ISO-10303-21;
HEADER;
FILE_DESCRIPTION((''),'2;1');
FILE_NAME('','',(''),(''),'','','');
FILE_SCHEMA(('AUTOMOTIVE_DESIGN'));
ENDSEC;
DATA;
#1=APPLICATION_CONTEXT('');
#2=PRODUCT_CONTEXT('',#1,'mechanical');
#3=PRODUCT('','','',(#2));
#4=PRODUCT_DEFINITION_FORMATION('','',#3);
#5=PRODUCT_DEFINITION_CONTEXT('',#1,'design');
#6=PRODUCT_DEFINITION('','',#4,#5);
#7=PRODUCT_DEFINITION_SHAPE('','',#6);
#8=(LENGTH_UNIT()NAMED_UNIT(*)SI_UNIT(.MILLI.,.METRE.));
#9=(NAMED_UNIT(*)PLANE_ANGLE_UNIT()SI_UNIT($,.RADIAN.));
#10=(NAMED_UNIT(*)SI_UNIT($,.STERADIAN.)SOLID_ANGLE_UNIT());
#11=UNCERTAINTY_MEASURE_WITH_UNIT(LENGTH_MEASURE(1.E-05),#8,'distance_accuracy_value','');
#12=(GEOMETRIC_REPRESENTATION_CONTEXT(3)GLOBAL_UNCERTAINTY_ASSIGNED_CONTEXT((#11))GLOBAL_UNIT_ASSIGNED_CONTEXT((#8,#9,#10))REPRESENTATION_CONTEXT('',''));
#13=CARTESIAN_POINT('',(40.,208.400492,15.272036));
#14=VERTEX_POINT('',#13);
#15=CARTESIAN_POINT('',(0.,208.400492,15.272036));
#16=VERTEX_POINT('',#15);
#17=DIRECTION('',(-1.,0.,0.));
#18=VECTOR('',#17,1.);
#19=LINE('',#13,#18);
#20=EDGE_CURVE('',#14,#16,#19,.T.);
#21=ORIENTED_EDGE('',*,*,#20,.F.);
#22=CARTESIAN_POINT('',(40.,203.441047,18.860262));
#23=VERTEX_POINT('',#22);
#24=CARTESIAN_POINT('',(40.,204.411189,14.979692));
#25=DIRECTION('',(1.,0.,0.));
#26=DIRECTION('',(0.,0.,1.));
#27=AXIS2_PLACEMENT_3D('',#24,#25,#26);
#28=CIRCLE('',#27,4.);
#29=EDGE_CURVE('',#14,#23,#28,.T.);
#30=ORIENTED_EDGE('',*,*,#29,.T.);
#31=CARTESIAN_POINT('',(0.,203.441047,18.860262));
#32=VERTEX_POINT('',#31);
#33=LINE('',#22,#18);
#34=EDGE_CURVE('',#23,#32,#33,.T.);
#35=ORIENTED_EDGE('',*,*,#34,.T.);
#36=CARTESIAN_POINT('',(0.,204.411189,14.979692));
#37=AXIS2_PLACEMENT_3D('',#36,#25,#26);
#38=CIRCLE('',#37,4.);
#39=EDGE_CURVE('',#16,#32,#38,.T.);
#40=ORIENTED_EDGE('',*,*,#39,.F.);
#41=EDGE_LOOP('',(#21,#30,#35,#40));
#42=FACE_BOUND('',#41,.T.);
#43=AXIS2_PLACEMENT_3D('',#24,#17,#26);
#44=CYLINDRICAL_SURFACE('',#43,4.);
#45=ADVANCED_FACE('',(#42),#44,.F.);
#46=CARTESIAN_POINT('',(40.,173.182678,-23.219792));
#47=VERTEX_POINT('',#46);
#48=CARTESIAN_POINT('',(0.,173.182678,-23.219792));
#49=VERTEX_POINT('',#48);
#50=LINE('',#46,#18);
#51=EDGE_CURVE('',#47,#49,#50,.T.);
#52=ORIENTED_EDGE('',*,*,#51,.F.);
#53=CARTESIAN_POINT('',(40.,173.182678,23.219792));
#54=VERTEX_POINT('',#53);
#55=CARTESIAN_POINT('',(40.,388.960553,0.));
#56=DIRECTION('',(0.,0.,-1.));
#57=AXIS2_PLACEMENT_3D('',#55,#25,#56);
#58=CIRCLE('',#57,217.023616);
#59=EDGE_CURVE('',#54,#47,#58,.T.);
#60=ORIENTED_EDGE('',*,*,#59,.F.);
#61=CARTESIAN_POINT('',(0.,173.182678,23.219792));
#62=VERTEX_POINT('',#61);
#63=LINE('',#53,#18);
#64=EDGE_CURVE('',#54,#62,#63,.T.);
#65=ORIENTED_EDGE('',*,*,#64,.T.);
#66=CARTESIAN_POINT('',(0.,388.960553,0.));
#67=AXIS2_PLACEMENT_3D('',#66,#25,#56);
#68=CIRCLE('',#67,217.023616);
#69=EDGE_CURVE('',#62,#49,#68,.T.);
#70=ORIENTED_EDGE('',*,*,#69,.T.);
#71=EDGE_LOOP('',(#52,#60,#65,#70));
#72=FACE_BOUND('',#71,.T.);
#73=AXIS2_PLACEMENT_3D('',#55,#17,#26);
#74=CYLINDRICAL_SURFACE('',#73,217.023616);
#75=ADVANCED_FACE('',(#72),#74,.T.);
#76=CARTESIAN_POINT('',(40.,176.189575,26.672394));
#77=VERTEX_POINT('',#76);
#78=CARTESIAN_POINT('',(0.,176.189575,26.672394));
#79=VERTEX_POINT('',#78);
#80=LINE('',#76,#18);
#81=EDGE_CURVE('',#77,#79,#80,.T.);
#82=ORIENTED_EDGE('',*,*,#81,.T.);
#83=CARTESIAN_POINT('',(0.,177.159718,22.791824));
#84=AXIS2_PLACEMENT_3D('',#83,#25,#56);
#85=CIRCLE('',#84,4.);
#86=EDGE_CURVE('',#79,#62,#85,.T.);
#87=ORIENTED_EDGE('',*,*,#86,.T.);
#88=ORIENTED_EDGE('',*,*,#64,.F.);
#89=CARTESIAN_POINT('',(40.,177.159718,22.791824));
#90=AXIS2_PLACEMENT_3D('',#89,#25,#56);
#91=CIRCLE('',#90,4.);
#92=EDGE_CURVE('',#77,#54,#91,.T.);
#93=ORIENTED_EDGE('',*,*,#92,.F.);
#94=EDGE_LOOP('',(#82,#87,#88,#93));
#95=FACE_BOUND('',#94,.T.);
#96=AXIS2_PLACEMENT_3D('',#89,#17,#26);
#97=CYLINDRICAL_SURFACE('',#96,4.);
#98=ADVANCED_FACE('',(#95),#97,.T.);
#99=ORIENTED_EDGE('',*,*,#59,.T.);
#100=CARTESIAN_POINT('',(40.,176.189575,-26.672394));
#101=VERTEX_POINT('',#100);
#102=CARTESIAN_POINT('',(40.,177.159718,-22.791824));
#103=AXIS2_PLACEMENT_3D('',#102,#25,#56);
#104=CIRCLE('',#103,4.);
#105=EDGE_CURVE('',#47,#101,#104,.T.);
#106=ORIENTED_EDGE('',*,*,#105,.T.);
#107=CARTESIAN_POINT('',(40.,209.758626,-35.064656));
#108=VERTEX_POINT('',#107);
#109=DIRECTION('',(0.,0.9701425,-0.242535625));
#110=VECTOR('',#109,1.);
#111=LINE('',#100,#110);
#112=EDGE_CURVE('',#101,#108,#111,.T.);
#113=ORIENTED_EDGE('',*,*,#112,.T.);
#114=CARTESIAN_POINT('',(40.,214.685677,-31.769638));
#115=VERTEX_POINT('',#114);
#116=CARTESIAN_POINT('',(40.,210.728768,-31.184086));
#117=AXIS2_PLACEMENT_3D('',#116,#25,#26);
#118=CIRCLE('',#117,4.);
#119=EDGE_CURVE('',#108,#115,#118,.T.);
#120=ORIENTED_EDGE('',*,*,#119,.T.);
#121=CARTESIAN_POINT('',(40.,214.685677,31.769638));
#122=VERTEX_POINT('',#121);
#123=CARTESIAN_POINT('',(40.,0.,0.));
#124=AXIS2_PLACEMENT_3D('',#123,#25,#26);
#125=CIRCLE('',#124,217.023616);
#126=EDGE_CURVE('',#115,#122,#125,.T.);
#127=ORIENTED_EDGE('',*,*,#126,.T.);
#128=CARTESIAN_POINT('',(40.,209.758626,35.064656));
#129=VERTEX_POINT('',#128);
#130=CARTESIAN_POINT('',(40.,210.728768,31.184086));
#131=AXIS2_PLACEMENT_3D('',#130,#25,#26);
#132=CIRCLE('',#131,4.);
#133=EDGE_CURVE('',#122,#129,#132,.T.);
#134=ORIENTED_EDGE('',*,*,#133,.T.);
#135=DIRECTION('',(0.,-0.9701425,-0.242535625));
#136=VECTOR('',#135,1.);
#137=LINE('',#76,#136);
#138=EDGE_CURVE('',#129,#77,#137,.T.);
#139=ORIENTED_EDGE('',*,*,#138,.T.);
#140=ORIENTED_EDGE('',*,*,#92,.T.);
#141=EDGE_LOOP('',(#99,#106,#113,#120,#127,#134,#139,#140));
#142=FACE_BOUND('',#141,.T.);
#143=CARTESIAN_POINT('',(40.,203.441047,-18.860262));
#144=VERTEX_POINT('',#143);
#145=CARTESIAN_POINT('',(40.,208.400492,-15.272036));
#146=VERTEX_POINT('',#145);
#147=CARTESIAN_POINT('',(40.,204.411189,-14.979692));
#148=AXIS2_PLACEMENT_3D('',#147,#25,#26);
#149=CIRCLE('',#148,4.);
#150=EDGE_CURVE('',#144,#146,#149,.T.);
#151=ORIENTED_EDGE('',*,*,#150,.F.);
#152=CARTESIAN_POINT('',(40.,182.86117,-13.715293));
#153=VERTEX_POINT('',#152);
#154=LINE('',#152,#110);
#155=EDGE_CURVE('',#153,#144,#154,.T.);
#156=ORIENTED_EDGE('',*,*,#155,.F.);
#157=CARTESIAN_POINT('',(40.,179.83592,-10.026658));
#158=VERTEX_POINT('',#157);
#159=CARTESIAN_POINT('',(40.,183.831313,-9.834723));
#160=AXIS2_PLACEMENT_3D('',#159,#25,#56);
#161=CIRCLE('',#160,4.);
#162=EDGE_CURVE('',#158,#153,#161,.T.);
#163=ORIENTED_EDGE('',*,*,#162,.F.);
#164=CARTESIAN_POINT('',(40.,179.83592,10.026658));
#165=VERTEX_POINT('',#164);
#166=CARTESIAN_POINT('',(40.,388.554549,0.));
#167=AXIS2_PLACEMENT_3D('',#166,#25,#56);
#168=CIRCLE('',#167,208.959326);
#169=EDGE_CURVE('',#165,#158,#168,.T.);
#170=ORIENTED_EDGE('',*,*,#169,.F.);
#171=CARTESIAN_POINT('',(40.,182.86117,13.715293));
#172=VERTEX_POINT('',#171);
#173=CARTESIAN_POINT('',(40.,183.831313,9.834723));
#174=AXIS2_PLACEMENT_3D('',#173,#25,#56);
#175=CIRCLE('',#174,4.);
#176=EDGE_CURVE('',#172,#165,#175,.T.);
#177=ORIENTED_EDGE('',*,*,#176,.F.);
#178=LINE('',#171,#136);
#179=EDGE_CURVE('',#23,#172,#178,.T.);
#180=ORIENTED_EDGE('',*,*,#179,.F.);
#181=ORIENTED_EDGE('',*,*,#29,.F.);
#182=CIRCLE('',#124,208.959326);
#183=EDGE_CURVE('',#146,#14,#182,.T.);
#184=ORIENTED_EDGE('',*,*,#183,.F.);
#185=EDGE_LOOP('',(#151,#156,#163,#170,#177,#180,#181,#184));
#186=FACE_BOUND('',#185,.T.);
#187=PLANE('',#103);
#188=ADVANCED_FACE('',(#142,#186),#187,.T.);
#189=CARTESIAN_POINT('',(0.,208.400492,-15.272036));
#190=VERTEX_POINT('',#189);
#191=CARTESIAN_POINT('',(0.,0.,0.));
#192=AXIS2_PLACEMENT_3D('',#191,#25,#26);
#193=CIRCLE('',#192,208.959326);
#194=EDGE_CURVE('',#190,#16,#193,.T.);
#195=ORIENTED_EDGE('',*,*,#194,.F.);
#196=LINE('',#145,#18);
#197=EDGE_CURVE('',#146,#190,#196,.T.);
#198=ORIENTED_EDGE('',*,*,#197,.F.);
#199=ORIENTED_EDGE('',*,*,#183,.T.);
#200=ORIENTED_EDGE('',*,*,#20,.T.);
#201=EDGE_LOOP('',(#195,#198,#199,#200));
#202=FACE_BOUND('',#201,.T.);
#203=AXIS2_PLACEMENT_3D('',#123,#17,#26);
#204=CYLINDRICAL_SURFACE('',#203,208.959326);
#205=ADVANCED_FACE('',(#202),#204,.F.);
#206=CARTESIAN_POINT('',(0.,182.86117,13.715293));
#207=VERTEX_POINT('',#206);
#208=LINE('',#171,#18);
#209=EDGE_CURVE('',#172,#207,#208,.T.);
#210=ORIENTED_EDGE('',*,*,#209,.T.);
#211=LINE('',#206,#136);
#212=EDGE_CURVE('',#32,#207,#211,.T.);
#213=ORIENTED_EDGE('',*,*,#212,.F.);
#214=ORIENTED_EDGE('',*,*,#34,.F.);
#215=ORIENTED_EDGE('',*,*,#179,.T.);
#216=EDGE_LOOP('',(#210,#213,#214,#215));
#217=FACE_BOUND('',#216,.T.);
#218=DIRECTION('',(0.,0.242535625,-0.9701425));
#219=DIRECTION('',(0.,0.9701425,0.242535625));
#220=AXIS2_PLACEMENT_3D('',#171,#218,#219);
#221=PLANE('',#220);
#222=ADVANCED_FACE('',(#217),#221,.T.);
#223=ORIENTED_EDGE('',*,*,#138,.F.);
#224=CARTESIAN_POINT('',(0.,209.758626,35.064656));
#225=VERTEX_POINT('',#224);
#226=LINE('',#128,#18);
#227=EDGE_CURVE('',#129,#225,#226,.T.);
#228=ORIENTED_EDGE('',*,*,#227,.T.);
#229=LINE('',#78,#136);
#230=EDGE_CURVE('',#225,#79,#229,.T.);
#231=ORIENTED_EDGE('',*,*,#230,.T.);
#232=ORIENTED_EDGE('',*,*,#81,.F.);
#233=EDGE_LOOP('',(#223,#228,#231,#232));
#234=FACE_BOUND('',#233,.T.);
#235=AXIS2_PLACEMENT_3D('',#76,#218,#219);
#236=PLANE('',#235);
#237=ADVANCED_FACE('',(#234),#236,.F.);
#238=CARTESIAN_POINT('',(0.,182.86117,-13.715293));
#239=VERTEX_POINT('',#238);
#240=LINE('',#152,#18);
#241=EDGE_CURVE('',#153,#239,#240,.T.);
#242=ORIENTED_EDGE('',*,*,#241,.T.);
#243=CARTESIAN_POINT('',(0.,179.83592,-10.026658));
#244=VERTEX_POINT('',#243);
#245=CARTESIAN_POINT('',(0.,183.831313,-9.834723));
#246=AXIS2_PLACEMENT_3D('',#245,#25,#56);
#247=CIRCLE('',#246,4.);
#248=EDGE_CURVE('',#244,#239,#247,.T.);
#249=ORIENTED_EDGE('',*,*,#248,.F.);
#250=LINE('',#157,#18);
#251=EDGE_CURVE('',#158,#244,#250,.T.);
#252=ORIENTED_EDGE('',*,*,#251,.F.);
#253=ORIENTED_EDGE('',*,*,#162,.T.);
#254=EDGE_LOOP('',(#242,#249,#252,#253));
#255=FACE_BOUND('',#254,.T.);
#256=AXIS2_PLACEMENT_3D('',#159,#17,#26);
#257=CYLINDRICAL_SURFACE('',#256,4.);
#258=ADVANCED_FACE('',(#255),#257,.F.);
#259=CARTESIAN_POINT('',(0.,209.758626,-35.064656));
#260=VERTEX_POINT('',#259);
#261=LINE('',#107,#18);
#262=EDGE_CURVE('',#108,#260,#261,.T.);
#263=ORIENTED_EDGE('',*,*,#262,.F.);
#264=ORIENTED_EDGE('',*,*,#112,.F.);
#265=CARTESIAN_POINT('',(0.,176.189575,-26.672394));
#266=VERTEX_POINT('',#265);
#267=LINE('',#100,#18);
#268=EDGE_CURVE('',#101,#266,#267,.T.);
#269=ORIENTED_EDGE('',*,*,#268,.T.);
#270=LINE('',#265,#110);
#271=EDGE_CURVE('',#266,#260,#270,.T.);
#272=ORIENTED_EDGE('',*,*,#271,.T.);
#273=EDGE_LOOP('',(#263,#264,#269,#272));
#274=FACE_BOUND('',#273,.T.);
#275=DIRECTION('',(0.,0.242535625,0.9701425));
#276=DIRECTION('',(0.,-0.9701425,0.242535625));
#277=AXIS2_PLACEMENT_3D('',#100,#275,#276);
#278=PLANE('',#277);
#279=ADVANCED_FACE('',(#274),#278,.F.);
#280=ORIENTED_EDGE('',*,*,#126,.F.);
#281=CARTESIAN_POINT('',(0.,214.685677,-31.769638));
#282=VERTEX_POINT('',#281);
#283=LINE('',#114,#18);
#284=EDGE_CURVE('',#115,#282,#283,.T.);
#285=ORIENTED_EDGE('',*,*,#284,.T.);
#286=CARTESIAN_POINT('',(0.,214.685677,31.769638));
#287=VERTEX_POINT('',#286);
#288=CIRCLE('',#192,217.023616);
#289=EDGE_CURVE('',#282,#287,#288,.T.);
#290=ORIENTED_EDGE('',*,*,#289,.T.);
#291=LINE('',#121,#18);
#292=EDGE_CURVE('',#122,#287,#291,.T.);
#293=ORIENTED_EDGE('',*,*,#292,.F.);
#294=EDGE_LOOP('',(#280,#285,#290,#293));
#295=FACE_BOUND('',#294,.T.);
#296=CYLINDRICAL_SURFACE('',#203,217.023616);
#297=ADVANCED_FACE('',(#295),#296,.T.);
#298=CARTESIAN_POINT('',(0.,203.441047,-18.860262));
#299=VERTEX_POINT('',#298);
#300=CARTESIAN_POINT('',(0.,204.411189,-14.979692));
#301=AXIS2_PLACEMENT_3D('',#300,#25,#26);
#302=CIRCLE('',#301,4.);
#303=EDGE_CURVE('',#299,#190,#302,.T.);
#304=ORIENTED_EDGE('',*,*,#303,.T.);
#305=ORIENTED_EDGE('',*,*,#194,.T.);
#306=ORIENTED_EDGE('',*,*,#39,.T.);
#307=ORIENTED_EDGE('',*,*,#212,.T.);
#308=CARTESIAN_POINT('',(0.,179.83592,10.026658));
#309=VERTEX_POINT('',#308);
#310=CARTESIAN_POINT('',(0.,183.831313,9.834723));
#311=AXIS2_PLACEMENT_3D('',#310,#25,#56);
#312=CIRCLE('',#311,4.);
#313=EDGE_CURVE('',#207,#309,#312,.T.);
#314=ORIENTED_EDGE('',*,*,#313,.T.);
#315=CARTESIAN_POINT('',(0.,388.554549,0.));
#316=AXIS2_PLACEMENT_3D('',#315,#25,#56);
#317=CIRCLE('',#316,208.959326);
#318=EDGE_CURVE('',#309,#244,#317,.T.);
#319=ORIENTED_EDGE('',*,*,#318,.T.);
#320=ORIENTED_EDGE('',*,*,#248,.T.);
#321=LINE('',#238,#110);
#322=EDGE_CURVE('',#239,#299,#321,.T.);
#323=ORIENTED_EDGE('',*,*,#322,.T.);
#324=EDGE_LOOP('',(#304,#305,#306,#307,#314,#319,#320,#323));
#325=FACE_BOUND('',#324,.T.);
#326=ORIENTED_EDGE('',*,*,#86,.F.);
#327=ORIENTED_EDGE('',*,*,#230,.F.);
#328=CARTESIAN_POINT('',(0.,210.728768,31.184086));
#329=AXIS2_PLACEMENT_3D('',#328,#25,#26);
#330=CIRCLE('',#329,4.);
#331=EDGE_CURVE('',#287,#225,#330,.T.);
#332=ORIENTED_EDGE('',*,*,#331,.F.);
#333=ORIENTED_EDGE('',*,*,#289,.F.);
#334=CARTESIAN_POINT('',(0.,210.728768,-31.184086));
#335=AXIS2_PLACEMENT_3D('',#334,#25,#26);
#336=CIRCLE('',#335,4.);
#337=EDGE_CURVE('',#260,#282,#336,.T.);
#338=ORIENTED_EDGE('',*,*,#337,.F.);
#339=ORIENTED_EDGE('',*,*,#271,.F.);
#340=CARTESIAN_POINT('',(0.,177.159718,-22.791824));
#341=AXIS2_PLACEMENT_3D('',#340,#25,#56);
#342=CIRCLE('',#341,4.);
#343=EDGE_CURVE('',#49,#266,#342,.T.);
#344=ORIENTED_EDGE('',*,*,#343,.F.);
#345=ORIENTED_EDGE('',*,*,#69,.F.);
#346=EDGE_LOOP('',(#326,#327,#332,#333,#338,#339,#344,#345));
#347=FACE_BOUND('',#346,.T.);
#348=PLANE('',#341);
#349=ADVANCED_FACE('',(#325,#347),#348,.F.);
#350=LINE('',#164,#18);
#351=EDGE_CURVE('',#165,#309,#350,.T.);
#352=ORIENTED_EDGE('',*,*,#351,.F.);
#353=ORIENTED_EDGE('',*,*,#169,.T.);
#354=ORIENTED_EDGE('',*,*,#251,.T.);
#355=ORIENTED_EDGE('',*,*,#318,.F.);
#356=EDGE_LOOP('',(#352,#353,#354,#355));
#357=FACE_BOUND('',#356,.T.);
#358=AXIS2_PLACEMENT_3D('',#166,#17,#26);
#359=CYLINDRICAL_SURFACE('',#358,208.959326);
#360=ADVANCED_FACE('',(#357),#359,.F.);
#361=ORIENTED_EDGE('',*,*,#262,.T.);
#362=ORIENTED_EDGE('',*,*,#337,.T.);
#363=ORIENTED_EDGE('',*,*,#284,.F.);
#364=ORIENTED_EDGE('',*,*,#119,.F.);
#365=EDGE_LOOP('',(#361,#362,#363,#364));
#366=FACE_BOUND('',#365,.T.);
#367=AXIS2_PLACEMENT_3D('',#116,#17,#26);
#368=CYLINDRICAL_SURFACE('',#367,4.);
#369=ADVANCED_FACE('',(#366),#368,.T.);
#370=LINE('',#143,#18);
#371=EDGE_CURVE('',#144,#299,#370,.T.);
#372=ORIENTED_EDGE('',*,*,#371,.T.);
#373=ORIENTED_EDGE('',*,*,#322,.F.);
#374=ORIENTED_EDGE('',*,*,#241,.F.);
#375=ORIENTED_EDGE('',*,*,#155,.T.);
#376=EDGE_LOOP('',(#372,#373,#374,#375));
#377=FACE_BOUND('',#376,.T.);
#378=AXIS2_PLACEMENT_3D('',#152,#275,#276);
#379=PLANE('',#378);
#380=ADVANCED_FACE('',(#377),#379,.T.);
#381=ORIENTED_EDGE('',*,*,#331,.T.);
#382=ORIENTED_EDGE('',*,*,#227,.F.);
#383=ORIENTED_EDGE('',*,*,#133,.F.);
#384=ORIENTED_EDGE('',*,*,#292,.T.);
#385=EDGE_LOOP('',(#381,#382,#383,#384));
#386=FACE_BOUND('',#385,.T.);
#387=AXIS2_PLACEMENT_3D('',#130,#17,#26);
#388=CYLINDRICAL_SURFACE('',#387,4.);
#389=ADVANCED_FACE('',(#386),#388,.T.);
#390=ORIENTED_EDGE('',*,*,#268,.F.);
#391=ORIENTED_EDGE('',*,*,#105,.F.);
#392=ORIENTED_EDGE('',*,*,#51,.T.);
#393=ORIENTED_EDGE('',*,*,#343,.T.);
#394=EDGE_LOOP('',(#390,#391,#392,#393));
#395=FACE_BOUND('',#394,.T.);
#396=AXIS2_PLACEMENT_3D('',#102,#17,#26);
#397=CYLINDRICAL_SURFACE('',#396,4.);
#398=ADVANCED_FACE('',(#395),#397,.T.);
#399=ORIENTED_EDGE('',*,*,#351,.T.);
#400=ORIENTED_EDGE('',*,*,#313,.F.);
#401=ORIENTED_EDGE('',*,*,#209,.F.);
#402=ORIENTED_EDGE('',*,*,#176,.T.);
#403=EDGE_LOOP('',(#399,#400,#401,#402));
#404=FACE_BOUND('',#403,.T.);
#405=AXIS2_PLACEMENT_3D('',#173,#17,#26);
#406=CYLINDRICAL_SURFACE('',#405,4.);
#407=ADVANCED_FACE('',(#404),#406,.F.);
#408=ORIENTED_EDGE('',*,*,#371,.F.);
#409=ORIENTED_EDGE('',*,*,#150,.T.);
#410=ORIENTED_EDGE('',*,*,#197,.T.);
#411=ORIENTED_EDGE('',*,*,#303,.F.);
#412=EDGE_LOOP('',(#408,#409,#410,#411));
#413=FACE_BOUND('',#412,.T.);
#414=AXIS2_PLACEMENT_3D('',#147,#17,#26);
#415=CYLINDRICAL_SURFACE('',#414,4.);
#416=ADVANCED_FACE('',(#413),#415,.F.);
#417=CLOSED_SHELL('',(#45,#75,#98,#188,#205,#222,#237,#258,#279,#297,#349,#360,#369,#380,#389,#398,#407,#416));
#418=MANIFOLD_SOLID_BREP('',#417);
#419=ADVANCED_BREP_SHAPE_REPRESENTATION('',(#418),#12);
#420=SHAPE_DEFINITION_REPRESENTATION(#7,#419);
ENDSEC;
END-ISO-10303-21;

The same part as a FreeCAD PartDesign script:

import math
import FreeCAD as App
import Part
import Sketcher
Q = App.Units.Quantity

doc = App.newDocument("Part")
params = doc.addObject("Spreadsheet::Sheet", "Params")
for row, (alias, value) in enumerate([
    ("sketch1_radius", "4 mm"),
    ("pad1_length", "40 mm"),
], start=1):
    params.set(f"A{row}", alias)
    params.set(f"B{row}", "=" + value)
    params.setAlias(f"B{row}", alias)

body = doc.addObject("PartDesign::Body", "Body")

sketch1 = body.newObject("Sketcher::SketchObject", "Sketch")
sketch1.AttachmentSupport = (doc.getObject("YZ_Plane"), [""])
sketch1.MapMode = "FlatFace"
sketch1.addGeometry([
    Part.LineSegment(App.Vector(176.189575, -26.672394, 0), App.Vector(209.758626, -35.064656, 0)),
    Part.ArcOfCircle(Part.Circle(App.Vector(210.728768, -31.184086, 0), App.Vector(0, 0, 1), 4), math.radians(-104.036243), math.radians(-8.417659)),
    Part.ArcOfCircle(Part.Circle(App.Vector(0, 0, 0), App.Vector(0, 0, 1), 217.023616), math.radians(-8.417659), math.radians(8.417659)),
    Part.ArcOfCircle(Part.Circle(App.Vector(210.728768, 31.184086, 0), App.Vector(0, 0, 1), 4), math.radians(8.417659), math.radians(104.036243)),
    Part.LineSegment(App.Vector(209.758626, 35.064656, 0), App.Vector(176.189575, 26.672394, 0)),
    Part.ArcOfCircle(Part.Circle(App.Vector(177.159718, 22.791824, 0), App.Vector(0, 0, 1), 4), math.radians(104.036243), math.radians(173.858053)),
    Part.ArcOfCircle(Part.Circle(App.Vector(388.960553, 0, 0), App.Vector(0, 0, 1), 217.023616), math.radians(173.858053), math.radians(186.141947)),
    Part.ArcOfCircle(Part.Circle(App.Vector(177.159718, -22.791824, 0), App.Vector(0, 0, 1), 4), math.radians(-173.858053), math.radians(-104.036243)),
    Part.LineSegment(App.Vector(203.441047, -18.860262, 0), App.Vector(182.86117, -13.715293, 0)),
    Part.ArcOfCircle(Part.Circle(App.Vector(183.831313, -9.834723, 0), App.Vector(0, 0, 1), 4), math.radians(-177.249676), math.radians(-104.036243)),
    Part.ArcOfCircle(Part.Circle(App.Vector(388.554549, 0, 0), App.Vector(0, 0, 1), 208.959326), math.radians(177.249676), math.radians(182.750324)),
    Part.ArcOfCircle(Part.Circle(App.Vector(183.831313, 9.834723, 0), App.Vector(0, 0, 1), 4), math.radians(104.036243), math.radians(177.249676)),
    Part.LineSegment(App.Vector(182.86117, 13.715293, 0), App.Vector(203.441047, 18.860262, 0)),
    Part.ArcOfCircle(Part.Circle(App.Vector(204.411189, 14.979692, 0), App.Vector(0, 0, 1), 4), math.radians(4.191266), math.radians(104.036243)),
    Part.ArcOfCircle(Part.Circle(App.Vector(0, 0, 0), App.Vector(0, 0, 1), 208.959326), math.radians(-4.191266), math.radians(4.191266)),
    Part.ArcOfCircle(Part.Circle(App.Vector(204.411189, -14.979692, 0), App.Vector(0, 0, 1), 4), math.radians(-104.036243), math.radians(-4.191266)),
], False)
sketch1.addConstraint([
    Sketcher.Constraint("Tangent", 0, 2, 1, 1),
    Sketcher.Constraint("Tangent", 1, 2, 2, 1),
    Sketcher.Constraint("Tangent", 2, 2, 3, 1),
    Sketcher.Constraint("Tangent", 3, 2, 4, 1),
    Sketcher.Constraint("Tangent", 4, 2, 5, 1),
    Sketcher.Constraint("Tangent", 5, 2, 6, 1),
    Sketcher.Constraint("Tangent", 6, 2, 7, 1),
    Sketcher.Constraint("Tangent", 7, 2, 0, 1),
    Sketcher.Constraint("Tangent", 8, 2, 9, 2),
    Sketcher.Constraint("Tangent", 9, 1, 10, 2),
    Sketcher.Constraint("Tangent", 10, 1, 11, 2),
    Sketcher.Constraint("Tangent", 11, 1, 12, 1),
    Sketcher.Constraint("Tangent", 12, 2, 13, 2),
    Sketcher.Constraint("Tangent", 13, 1, 14, 2),
    Sketcher.Constraint("Tangent", 14, 1, 15, 2),
    Sketcher.Constraint("Tangent", 15, 1, 8, 1),
    Sketcher.Constraint("Coincident", 2, 3, -1, 1),
    Sketcher.Constraint("Coincident", 14, 3, -1, 1),
    Sketcher.Constraint("Equal", 1, 3),
    Sketcher.Constraint("Equal", 3, 5),
    Sketcher.Constraint("Equal", 2, 6),
    Sketcher.Constraint("Equal", 5, 7),
    Sketcher.Constraint("Equal", 7, 9),
    Sketcher.Constraint("Equal", 9, 11),
    Sketcher.Constraint("Equal", 11, 13),
    Sketcher.Constraint("Equal", 10, 14),
    Sketcher.Constraint("Equal", 13, 15),
    Sketcher.Constraint("Symmetric", 5, 3, 7, 3, -1),
    Sketcher.Constraint("Symmetric", 9, 3, 11, 3, -1),
    Sketcher.Constraint("Parallel", 0, 8),
    Sketcher.Constraint("Parallel", 4, 12),
    Sketcher.Constraint("Vertical", 1, 3, 3, 3),
    Sketcher.Constraint("Radius", 1, Q("4 mm")),
    Sketcher.Constraint("Radius", 2, Q("217.023616 mm")),
    Sketcher.Constraint("Radius", 10, Q("208.959326 mm")),
    Sketcher.Constraint("DistanceY", 7, 3, 9, 3, Q("12.957101 mm")),
    Sketcher.Constraint("DistanceY", 5, 2, 4, 2, Q("3.452602 mm")),
    Sketcher.Constraint("DistanceY", 13, 3, 5, 2, Q("8.2401 mm")),
    Sketcher.Constraint("Distance", 8, Q("21.213251 mm")),
    Sketcher.Constraint("DistanceX", -1, 1, 1, 3, Q("210.728768 mm")),
])
sketch1.setExpression("Constraints[32]", "Params.sketch1_radius")
pad1 = body.newObject("PartDesign::Pad", "Pad")
pad1.Profile = sketch1
pad1.setExpression("Length", "Params.pad1_length")

doc.recompute()
